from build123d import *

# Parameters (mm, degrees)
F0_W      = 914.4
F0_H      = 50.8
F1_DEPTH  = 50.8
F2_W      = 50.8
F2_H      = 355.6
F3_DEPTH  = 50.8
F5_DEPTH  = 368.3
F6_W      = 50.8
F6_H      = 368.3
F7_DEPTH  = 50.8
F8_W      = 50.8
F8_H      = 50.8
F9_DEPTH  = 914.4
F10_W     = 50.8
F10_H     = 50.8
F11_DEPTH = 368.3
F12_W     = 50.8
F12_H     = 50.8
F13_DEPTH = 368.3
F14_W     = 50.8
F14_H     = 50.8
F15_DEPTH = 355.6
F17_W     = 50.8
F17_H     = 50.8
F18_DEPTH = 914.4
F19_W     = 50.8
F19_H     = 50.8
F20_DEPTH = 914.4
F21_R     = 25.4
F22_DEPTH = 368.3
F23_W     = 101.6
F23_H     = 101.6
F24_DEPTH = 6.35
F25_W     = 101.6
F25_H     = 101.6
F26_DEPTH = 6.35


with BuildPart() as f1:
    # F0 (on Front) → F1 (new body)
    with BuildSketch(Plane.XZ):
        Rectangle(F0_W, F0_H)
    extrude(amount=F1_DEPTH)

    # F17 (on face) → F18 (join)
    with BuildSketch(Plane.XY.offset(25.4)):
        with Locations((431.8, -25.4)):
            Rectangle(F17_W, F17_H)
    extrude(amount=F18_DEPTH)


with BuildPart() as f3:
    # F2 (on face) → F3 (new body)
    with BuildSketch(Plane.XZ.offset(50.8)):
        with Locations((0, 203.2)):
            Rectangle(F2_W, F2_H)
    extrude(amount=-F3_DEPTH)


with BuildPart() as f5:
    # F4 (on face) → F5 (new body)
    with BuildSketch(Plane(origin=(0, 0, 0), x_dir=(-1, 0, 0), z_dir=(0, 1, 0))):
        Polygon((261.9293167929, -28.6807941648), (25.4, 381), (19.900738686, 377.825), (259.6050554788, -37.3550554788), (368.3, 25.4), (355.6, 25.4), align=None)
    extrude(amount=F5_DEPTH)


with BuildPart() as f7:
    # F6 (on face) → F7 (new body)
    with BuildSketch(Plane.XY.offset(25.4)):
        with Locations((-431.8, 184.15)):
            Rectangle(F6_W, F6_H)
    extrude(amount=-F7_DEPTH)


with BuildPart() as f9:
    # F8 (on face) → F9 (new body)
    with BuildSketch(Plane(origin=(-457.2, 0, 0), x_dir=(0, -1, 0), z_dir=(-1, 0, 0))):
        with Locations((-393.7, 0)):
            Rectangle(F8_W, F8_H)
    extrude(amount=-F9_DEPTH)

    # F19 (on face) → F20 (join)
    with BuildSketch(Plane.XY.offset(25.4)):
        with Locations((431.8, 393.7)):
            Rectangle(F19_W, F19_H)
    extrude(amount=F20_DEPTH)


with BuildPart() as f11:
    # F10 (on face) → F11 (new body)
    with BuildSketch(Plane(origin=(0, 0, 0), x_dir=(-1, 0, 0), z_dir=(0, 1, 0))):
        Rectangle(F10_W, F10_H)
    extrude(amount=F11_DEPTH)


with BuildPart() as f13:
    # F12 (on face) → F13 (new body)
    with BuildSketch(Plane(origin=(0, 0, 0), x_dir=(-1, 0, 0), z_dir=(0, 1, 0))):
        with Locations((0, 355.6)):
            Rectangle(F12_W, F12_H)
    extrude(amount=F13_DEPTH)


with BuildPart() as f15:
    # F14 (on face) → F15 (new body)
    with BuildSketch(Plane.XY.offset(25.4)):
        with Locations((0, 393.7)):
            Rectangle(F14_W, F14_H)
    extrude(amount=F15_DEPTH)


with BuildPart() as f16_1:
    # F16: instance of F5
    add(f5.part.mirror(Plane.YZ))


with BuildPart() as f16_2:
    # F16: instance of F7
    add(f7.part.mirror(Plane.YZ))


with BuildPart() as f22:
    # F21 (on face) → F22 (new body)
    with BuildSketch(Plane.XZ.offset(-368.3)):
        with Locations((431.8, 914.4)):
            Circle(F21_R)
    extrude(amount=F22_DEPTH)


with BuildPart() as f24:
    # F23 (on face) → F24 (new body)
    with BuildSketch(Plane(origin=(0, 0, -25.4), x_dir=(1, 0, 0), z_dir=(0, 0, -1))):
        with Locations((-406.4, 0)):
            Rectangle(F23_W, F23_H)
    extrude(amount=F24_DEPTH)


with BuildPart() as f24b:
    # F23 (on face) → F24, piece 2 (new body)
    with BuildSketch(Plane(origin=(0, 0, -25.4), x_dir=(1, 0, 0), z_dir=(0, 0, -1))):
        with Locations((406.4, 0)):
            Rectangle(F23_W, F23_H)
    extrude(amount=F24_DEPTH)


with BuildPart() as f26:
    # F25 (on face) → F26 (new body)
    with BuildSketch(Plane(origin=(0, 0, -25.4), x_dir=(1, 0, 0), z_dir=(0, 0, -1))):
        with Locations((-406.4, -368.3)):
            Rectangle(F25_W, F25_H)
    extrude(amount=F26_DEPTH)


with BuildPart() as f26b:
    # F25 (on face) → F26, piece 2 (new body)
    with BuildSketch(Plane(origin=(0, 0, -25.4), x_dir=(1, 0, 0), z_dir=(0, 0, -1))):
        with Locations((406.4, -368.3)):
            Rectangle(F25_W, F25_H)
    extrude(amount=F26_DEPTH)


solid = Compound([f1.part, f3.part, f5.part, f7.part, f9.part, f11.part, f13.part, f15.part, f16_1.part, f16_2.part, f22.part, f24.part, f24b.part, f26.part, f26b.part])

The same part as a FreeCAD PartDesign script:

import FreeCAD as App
import Part
import Sketcher

V = App.Vector
Q = App.Units.Quantity


def add_polygon(sketch, points):
    """Adds a closed chain of lines whose ends are joined by coincident constraints."""
    first, n = sketch.GeometryCount, len(points)
    for a, b in zip(points, points[1:] + points[:1]):
        sketch.addGeometry(Part.LineSegment(App.Vector(*a, 0), App.Vector(*b, 0)), False)
    for i in range(n):
        sketch.addConstraint(Sketcher.Constraint("Coincident", first + i, 2, first + (i + 1) % n, 1))

doc = App.newDocument("Part")
params = doc.addObject("Spreadsheet::Sheet", "Params")
for row, (alias, value) in enumerate([
    ("sketch1_width", "36 in"),
    ("sketch1_height", "2 in"),
    ("pad1_length", "2 in"),
    ("sketch2_width", "2 in"),
    ("pad2_length", "36 in"),
    ("sketch3_width", "2 in"),
    ("sketch3_height", "14 in"),
    ("pad3_length", "2 in"),
    ("sketch4_width", "0.5 in"),
    ("sketch4_length", "0.25 in"),
    ("pad4_length", "14.5 in"),
    ("sketch5_width", "2 in"),
    ("sketch5_height", "14.5 in"),
    ("pad5_length", "2 in"),
    ("sketch6_width", "2 in"),
    ("pad6_length", "36 in"),
    ("sketch7_width", "2 in"),
    ("pad7_length", "36 in"),
    ("sketch8_width", "2 in"),
    ("pad8_length", "14.5 in"),
    ("sketch9_width", "2 in"),
    ("pad9_length", "14.5 in"),
    ("sketch10_width", "2 in"),
    ("pad10_length", "14 in"),
    ("sketch11_diameter", "2 in"),
    ("pad11_length", "14.5 in"),
    ("sketch12_width", "4 in"),
    ("pad12_length", "0.25 in"),
    ("sketch13_width", "4 in"),
    ("pad13_length", "0.25 in"),
    ("sketch14_width", "4 in"),
    ("pad14_length", "0.25 in"),
    ("sketch15_width", "4 in"),
    ("pad15_length", "0.25 in"),
], start=1):
    params.set(f"A{row}", alias)
    params.set(f"B{row}", "=" + value)
    params.setAlias(f"B{row}", alias)

body = doc.addObject("PartDesign::Body", "Body")

# Sketch on XZ plane
sketch1 = body.newObject("Sketcher::SketchObject", "Sketch")
sketch1.AttachmentSupport = (doc.getObject("XZ_Plane"), [""])
sketch1.MapMode = "FlatFace"
add_polygon(sketch1, [(-457, 25), (-457, -25), (457, -25), (457, 25)])  # lines 0-3
sketch1.addConstraint([
    Sketcher.Constraint("Vertical", 0),
    Sketcher.Constraint("Horizontal", 1),
    Sketcher.Constraint("Vertical", 2),
    Sketcher.Constraint("Horizontal", 3),
    Sketcher.Constraint("Symmetric", 0, 2, 2, 2, -1, 1),
    Sketcher.Constraint("DistanceX", 1, 1, 1, 2, Q("36 in")),
    Sketcher.Constraint("DistanceY", 0, 2, 0, 1, Q("2 in")),
])
sketch1.setExpression("Constraints[9]", "Params.sketch1_width")
sketch1.setExpression("Constraints[10]", "Params.sketch1_height")
pad1 = body.newObject("PartDesign::Pad", "Pad")
pad1.Profile = sketch1
pad1.setExpression("Length", "Params.pad1_length")

# Sketch on XY plane
sketch2 = body.newObject("Sketcher::SketchObject", "Sketch001")
sketch2.AttachmentSupport = (doc.getObject("XY_Plane"), [""])
sketch2.MapMode = "FlatFace"
sketch2.AttachmentOffset = App.Placement(V(0, 0, 1 * 25.4), App.Rotation())
add_polygon(sketch2, [(406, 0), (406, -51), (457, -51), (457, 0)])  # lines 0-3
sketch2.addConstraint([
    Sketcher.Constraint("Vertical", 0),
    Sketcher.Constraint("Horizontal", 1),
    Sketcher.Constraint("Vertical", 2),
    Sketcher.Constraint("Horizontal", 3),
    Sketcher.Constraint("PointOnObject", 2, 2, -1),
    Sketcher.Constraint("Equal", 3, 0),
    Sketcher.Constraint("DistanceX", 1, 1, 1, 2, Q("2 in")),
    Sketcher.Constraint("DistanceX", -1, 1, 0, 2, Q("16 in")),
])
sketch2.setExpression("Constraints[10]", "Params.sketch2_width")
pad2 = body.newObject("PartDesign::Pad", "Pad001")
pad2.Profile = sketch2
pad2.setExpression("Length", "Params.pad2_length")
body2 = doc.addObject("PartDesign::Body", "Body001")

# Sketch on XZ plane
sketch3 = body2.newObject("Sketcher::SketchObject", "Sketch002")
sketch3.AttachmentSupport = (doc.getObject("XZ_Plane001"), [""])
sketch3.MapMode = "FlatFace"
sketch3.AttachmentOffset = App.Placement(V(0, 0, 2 * 25.4), App.Rotation())
add_polygon(sketch3, [(-25, 381), (-25, 25), (25, 25), (25, 381)])  # lines 0-3
sketch3.addConstraint([
    Sketcher.Constraint("Vertical", 0),
    Sketcher.Constraint("Horizontal", 1),
    Sketcher.Constraint("Vertical", 2),
    Sketcher.Constraint("Horizontal", 3),
    Sketcher.Constraint("DistanceX", 1, 1, 1, 2, Q("2 in")),
    Sketcher.Constraint("DistanceY", 0, 2, 0, 1, Q("14 in")),
    Sketcher.Constraint("DistanceX", 0, 2, -1, 1, Q("1 in")),
    Sketcher.Constraint("DistanceY", -1, 1, 0, 2, Q("1 in")),
])
sketch3.setExpression("Constraints[8]", "Params.sketch3_width")
sketch3.setExpression("Constraints[9]", "Params.sketch3_height")
pad3 = body2.newObject("PartDesign::Pad", "Pad002")
pad3.Profile = sketch3
pad3.setExpression("Length", "Params.pad3_length")
pad3.Reversed = True
body3 = doc.addObject("PartDesign::Body", "Body002")

# Sketch on XZ plane
sketch4 = body3.newObject("Sketcher::SketchObject", "Sketch003")
sketch4.AttachmentSupport = (doc.getObject("XZ_Plane002"), [""])
sketch4.MapMode = "FlatFace"
add_polygon(sketch4, [(-262, -29), (-25, 381), (-20, 378), (-260, -37), (-368, 25), (-356, 25)])  # lines 0-5
sketch4.addConstraint([
    Sketcher.Constraint("Horizontal", 4),
    Sketcher.Constraint("Perpendicular", 0, 1),
    Sketcher.Constraint("Perpendicular", 1, 2),
    Sketcher.Constraint("Perpendicular", 2, 3),
    Sketcher.Constraint("Parallel", 3, 5),
    Sketcher.Constraint("DistanceX", 4, 1, 4, 2, Q("0.5 in")),
    Sketcher.Constraint("DistanceX", 0, 2, -1, 1, Q("1 in")),
    Sketcher.Constraint("DistanceY", -1, 1, 0, 2, Q("15 in")),
    Sketcher.Constraint("DistanceY", -1, 1, 3, 2, Q("1 in")),
    Sketcher.Constraint("DistanceX", 4, 2, -1, 1, Q("14 in")),
    Sketcher.Constraint("Angle", 0, Q("60 deg")),
    Sketcher.Constraint("Distance", 1, Q("0.25 in")),
])
sketch4.setExpression("Constraints[11]", "Params.sketch4_width")
sketch4.setExpression("Constraints[17]", "Params.sketch4_length")
pad4 = body3.newObject("PartDesign::Pad", "Pad003")
pad4.Profile = sketch4
pad4.setExpression("Length", "Params.pad4_length")
pad4.Reversed = True
body4 = doc.addObject("PartDesign::Body", "Body003")

# Sketch on XY plane
sketch5 = body4.newObject("Sketcher::SketchObject", "Sketch004")
sketch5.AttachmentSupport = (doc.getObject("XY_Plane003"), [""])
sketch5.MapMode = "FlatFace"
sketch5.AttachmentOffset = App.Placement(V(0, 0, 1 * 25.4), App.Rotation())
add_polygon(sketch5, [(-457, 368), (-457, 0), (-406, 0), (-406, 368)])  # lines 0-3
sketch5.addConstraint([
    Sketcher.Constraint("Vertical", 0),
    Sketcher.Constraint("Horizontal", 1),
    Sketcher.Constraint("Vertical", 2),
    Sketcher.Constraint("Horizontal", 3),
    Sketcher.Constraint("PointOnObject", 0, 2, -1),
    Sketcher.Constraint("DistanceX", 1, 1, 1, 2, Q("2 in")),
    Sketcher.Constraint("DistanceY", 0, 2, 0, 1, Q("14.5 in")),
    Sketcher.Constraint("DistanceX", 0, 2, -1, 1, Q("18 in")),
])
sketch5.setExpression("Constraints[9]", "Params.sketch5_width")
sketch5.setExpression("Constraints[10]", "Params.sketch5_height")
pad5 = body4.newObject("PartDesign::Pad", "Pad004")
pad5.Profile = sketch5
pad5.setExpression("Length", "Params.pad5_length")
pad5.Reversed = True
body5 = doc.addObject("PartDesign::Body", "Body004")

# Sketch on YZ plane
sketch6 = body5.newObject("Sketcher::SketchObject", "Sketch005")
sketch6.AttachmentSupport = (doc.getObject("YZ_Plane004"), [""])
sketch6.MapMode = "FlatFace"
sketch6.AttachmentOffset = App.Placement(V(0, 0, -18 * 25.4), App.Rotation())
add_polygon(sketch6, [(419, 25), (419, -25), (368, -25), (368, 25)])  # lines 0-3
sketch6.addConstraint([
    Sketcher.Constraint("Vertical", 0),
    Sketcher.Constraint("Horizontal", 1),
    Sketcher.Constraint("Vertical", 2),
    Sketcher.Constraint("Horizontal", 3),
    Sketcher.Constraint("Equal", 3, 0),
    Sketcher.Constraint("DistanceX", 1, 2, 1, 1, Q("2 in")),
    Sketcher.Constraint("DistanceY", 0, 2, -1, 1, Q("1 in")),
    Sketcher.Constraint("DistanceX", -1, 1, 0, 2, Q("16.5 in")),
])
sketch6.setExpression("Constraints[9]", "Params.sketch6_width")
pad6 = body5.newObject("PartDesign::Pad", "Pad005")
pad6.Profile = sketch6
pad6.setExpression("Length", "Params.pad6_length")

# Sketch on XY plane
sketch7 = body5.newObject("Sketcher::SketchObject", "Sketch006")
sketch7.AttachmentSupport = (doc.getObject("XY_Plane004"), [""])
sketch7.MapMode = "FlatFace"
sketch7.AttachmentOffset = App.Placement(V(0, 0, 1 * 25.4), App.Rotation())
add_polygon(sketch7, [(406, 419), (406, 368), (457, 368), (457, 419)])  # lines 0-3
sketch7.addConstraint([
    Sketcher.Constraint("Vertical", 0),
    Sketcher.Constraint("Horizontal", 1),
    Sketcher.Constraint("Vertical", 2),
    Sketcher.Constraint("Horizontal", 3),
    Sketcher.Constraint("Equal", 3, 0),
    Sketcher.Constraint("DistanceX", 1, 1, 1, 2, Q("2 in")),
    Sketcher.Constraint("DistanceX", -1, 1, 0, 2, Q("16 in")),
    Sketcher.Constraint("DistanceY", -1, 1, 0, 2, Q("14.5 in")),
])
sketch7.setExpression("Constraints[9]", "Params.sketch7_width")
pad7 = body5.newObject("PartDesign::Pad", "Pad006")
pad7.Profile = sketch7
pad7.setExpression("Length", "Params.pad7_length")
body6 = doc.addObject("PartDesign::Body", "Body005")

# Sketch on XZ plane
sketch8 = body6.newObject("Sketcher::SketchObject", "Sketch007")
sketch8.AttachmentSupport = (doc.getObject("XZ_Plane005"), [""])
sketch8.MapMode = "FlatFace"
add_polygon(sketch8, [(25, 25), (25, -25), (-25, -25), (-25, 25)])  # lines 0-3
sketch8.addConstraint([
    Sketcher.Constraint("Vertical", 0),
    Sketcher.Constraint("Horizontal", 1),
    Sketcher.Constraint("Vertical", 2),
    Sketcher.Constraint("Horizontal", 3),
    Sketcher.Constraint("Symmetric", 0, 2, 2, 2, -1, 1),
    Sketcher.Constraint("Equal", 3, 0),
    Sketcher.Constraint("DistanceX", 1, 2, 1, 1, Q("2 in")),
])
sketch8.setExpression("Constraints[10]", "Params.sketch8_width")
pad8 = body6.newObject("PartDesign::Pad", "Pad007")
pad8.Profile = sketch8
pad8.setExpression("Length", "Params.pad8_length")
pad8.Reversed = True
body7 = doc.addObject("PartDesign::Body", "Body006")

# Sketch on XZ plane
sketch9 = body7.newObject("Sketcher::SketchObject", "Sketch008")
sketch9.AttachmentSupport = (doc.getObject("XZ_Plane006"), [""])
sketch9.MapMode = "FlatFace"
add_polygon(sketch9, [(25, 381), (25, 330), (-25, 330), (-25, 381)])  # lines 0-3
sketch9.addConstraint([
    Sketcher.Constraint("Vertical", 0),
    Sketcher.Constraint("Horizontal", 1),
    Sketcher.Constraint("Vertical", 2),
    Sketcher.Constraint("Horizontal", 3),
    Sketcher.Constraint("Equal", 3, 0),
    Sketcher.Constraint("DistanceX", 1, 2, 1, 1, Q("2 in")),
    Sketcher.Constraint("DistanceX", -1, 1, 0, 2, Q("1 in")),
    Sketcher.Constraint("DistanceY", -1, 1, 0, 2, Q("13 in")),
])
sketch9.setExpression("Constraints[9]", "Params.sketch9_width")
pad9 = body7.newObject("PartDesign::Pad", "Pad008")
pad9.Profile = sketch9
pad9.setExpression("Length", "Params.pad9_length")
pad9.Reversed = True
body8 = doc.addObject("PartDesign::Body", "Body007")

# Sketch on XY plane
sketch10 = body8.newObject("Sketcher::SketchObject", "Sketch009")
sketch10.AttachmentSupport = (doc.getObject("XY_Plane007"), [""])
sketch10.MapMode = "FlatFace"
sketch10.AttachmentOffset = App.Placement(V(0, 0, 1 * 25.4), App.Rotation())
add_polygon(sketch10, [(-25, 419), (-25, 368), (25, 368), (25, 419)])  # lines 0-3
sketch10.addConstraint([
    Sketcher.Constraint("Vertical", 0),
    Sketcher.Constraint("Horizontal", 1),
    Sketcher.Constraint("Vertical", 2),
    Sketcher.Constraint("Horizontal", 3),
    Sketcher.Constraint("Equal", 3, 0),
    Sketcher.Constraint("DistanceX", 1, 1, 1, 2, Q("2 in")),
    Sketcher.Constraint("DistanceX", 0, 2, -1, 1, Q("1 in")),
    Sketcher.Constraint("DistanceY", -1, 1, 0, 2, Q("14.5 in")),
])
sketch10.setExpression("Constraints[9]", "Params.sketch10_width")
pad10 = body8.newObject("PartDesign::Pad", "Pad009")
pad10.Profile = sketch10
pad10.setExpression("Length", "Params.pad10_length")
body9 = doc.addObject("PartDesign::Body", "Body008")
doc.recompute()

mirroring = doc.addObject("Part::Mirroring", "Mirroring")
mirroring.Source = body3
mirroring.Base = V(0, 0, 0)
mirroring.Normal = V(1, 0, 0)
body9.BaseFeature = mirroring
doc.recompute()
body10 = doc.addObject("PartDesign::Body", "Body009")
doc.recompute()

mirroring2 = doc.addObject("Part::Mirroring", "Mirroring001")
mirroring2.Source = body4
mirroring2.Base = V(0, 0, 0)
mirroring2.Normal = V(1, 0, 0)
body10.BaseFeature = mirroring2
doc.recompute()
body11 = doc.addObject("PartDesign::Body", "Body010")

# Sketch on XZ plane
sketch11 = body11.newObject("Sketcher::SketchObject", "Sketch010")
sketch11.AttachmentSupport = (doc.getObject("XZ_Plane010"), [""])
sketch11.MapMode = "FlatFace"
sketch11.AttachmentOffset = App.Placement(V(0, 0, -14.5 * 25.4), App.Rotation())
sketch11.addGeometry(Part.Circle(V(432, 914, 0), V(0, 0, 1), 25), False)
sketch11.addConstraint([
    Sketcher.Constraint("Diameter", 0, Q("2 in")),
    Sketcher.Constraint("DistanceX", -1, 1, 0, 3, Q("17 in")),
    Sketcher.Constraint("DistanceY", -1, 1, 0, 3, Q("36 in")),
])
sketch11.setExpression("Constraints[0]", "Params.sketch11_diameter")
pad11 = body11.newObject("PartDesign::Pad", "Pad010")
pad11.Profile = sketch11
pad11.setExpression("Length", "Params.pad11_length")
body12 = doc.addObject("PartDesign::Body", "Body011")

# Sketch on XY plane
sketch12 = body12.newObject("Sketcher::SketchObject", "Sketch011")
sketch12.AttachmentSupport = (doc.getObject("XY_Plane011"), [""])
sketch12.MapMode = "FlatFace"
sketch12.AttachmentOffset = App.Placement(V(0, 0, -1 * 25.4), App.Rotation())
add_polygon(sketch12, [(-457, -51), (-457, 51), (-356, 51), (-356, -51)])  # lines 0-3
sketch12.addConstraint([
    Sketcher.Constraint("Vertical", 0),
    Sketcher.Constraint("Horizontal", 1),
    Sketcher.Constraint("Vertical", 2),
    Sketcher.Constraint("Horizontal", 3),
    Sketcher.Constraint("Equal", 3, 0),
    Sketcher.Constraint("DistanceX", 1, 1, 1, 2, Q("4 in")),
    Sketcher.Constraint("DistanceX", 0, 2, -1, 1, Q("18 in")),
    Sketcher.Constraint("DistanceY", -1, 1, 0, 2, Q("2 in")),
])
sketch12.setExpression("Constraints[9]", "Params.sketch12_width")
pad12 = body12.newObject("PartDesign::Pad", "Pad011")
pad12.Profile = sketch12
pad12.setExpression("Length", "Params.pad12_length")
pad12.Reversed = True
body13 = doc.addObject("PartDesign::Body", "Body012")

# Sketch on XY plane
sketch13 = body13.newObject("Sketcher::SketchObject", "Sketch012")
sketch13.AttachmentSupport = (doc.getObject("XY_Plane012"), [""])
sketch13.MapMode = "FlatFace"
sketch13.AttachmentOffset = App.Placement(V(0, 0, -1 * 25.4), App.Rotation())
add_polygon(sketch13, [(356, -51), (356, 51), (457, 51), (457, -51)])  # lines 0-3
sketch13.addConstraint([
    Sketcher.Constraint("Vertical", 0),
    Sketcher.Constraint("Horizontal", 1),
    Sketcher.Constraint("Vertical", 2),
    Sketcher.Constraint("Horizontal", 3),
    Sketcher.Constraint("Equal", 3, 0),
    Sketcher.Constraint("DistanceX", 1, 1, 1, 2, Q("4 in")),
    Sketcher.Constraint("DistanceX", -1, 1, 0, 2, Q("14 in")),
    Sketcher.Constraint("DistanceY", -1, 1, 0, 2, Q("2 in")),
])
sketch13.setExpression("Constraints[9]", "Params.sketch13_width")
pad13 = body13.newObject("PartDesign::Pad", "Pad012")
pad13.Profile = sketch13
pad13.setExpression("Length", "Params.pad13_length")
pad13.Reversed = True
body14 = doc.addObject("PartDesign::Body", "Body013")

# Sketch on XY plane
sketch14 = body14.newObject("Sketcher::SketchObject", "Sketch013")
sketch14.AttachmentSupport = (doc.getObject("XY_Plane013"), [""])
sketch14.MapMode = "FlatFace"
sketch14.AttachmentOffset = App.Placement(V(0, 0, -1 * 25.4), App.Rotation())
add_polygon(sketch14, [(-457, 318), (-457, 419), (-356, 419), (-356, 318)])  # lines 0-3
sketch14.addConstraint([
    Sketcher.Constraint("Vertical", 0),
    Sketcher.Constraint("Horizontal", 1),
    Sketcher.Constraint("Vertical", 2),
    Sketcher.Constraint("Horizontal", 3),
    Sketcher.Constraint("Equal", 3, 0),
    Sketcher.Constraint("DistanceX", 1, 1, 1, 2, Q("4 in")),
    Sketcher.Constraint("DistanceX", 0, 2, -1, 1, Q("18 in")),
    Sketcher.Constraint("DistanceY", -1, 1, 0, 2, Q("16.5 in")),
])
sketch14.setExpression("Constraints[9]", "Params.sketch14_width")
pad14 = body14.newObject("PartDesign::Pad", "Pad013")
pad14.Profile = sketch14
pad14.setExpression("Length", "Params.pad14_length")
pad14.Reversed = True
body15 = doc.addObject("PartDesign::Body", "Body014")

# Sketch on XY plane
sketch15 = body15.newObject("Sketcher::SketchObject", "Sketch014")
sketch15.AttachmentSupport = (doc.getObject("XY_Plane014"), [""])
sketch15.MapMode = "FlatFace"
sketch15.AttachmentOffset = App.Placement(V(0, 0, -1 * 25.4), App.Rotation())
add_polygon(sketch15, [(356, 318), (356, 419), (457, 419), (457, 318)])  # lines 0-3
sketch15.addConstraint([
    Sketcher.Constraint("Vertical", 0),
    Sketcher.Constraint("Horizontal", 1),
    Sketcher.Constraint("Vertical", 2),
    Sketcher.Constraint("Horizontal", 3),
    Sketcher.Constraint("Equal", 3, 0),
    Sketcher.Constraint("DistanceX", 1, 1, 1, 2, Q("4 in")),
    Sketcher.Constraint("DistanceX", -1, 1, 0, 2, Q("14 in")),
    Sketcher.Constraint("DistanceY", -1, 1, 0, 2, Q("16.5 in")),
])
sketch15.setExpression("Constraints[9]", "Params.sketch15_width")
pad15 = body15.newObject("PartDesign::Pad", "Pad014")
pad15.Profile = sketch15
pad15.setExpression("Length", "Params.pad15_length")
pad15.Reversed = True
mirroring.Visibility = False
mirroring2.Visibility = False

doc.recompute()
